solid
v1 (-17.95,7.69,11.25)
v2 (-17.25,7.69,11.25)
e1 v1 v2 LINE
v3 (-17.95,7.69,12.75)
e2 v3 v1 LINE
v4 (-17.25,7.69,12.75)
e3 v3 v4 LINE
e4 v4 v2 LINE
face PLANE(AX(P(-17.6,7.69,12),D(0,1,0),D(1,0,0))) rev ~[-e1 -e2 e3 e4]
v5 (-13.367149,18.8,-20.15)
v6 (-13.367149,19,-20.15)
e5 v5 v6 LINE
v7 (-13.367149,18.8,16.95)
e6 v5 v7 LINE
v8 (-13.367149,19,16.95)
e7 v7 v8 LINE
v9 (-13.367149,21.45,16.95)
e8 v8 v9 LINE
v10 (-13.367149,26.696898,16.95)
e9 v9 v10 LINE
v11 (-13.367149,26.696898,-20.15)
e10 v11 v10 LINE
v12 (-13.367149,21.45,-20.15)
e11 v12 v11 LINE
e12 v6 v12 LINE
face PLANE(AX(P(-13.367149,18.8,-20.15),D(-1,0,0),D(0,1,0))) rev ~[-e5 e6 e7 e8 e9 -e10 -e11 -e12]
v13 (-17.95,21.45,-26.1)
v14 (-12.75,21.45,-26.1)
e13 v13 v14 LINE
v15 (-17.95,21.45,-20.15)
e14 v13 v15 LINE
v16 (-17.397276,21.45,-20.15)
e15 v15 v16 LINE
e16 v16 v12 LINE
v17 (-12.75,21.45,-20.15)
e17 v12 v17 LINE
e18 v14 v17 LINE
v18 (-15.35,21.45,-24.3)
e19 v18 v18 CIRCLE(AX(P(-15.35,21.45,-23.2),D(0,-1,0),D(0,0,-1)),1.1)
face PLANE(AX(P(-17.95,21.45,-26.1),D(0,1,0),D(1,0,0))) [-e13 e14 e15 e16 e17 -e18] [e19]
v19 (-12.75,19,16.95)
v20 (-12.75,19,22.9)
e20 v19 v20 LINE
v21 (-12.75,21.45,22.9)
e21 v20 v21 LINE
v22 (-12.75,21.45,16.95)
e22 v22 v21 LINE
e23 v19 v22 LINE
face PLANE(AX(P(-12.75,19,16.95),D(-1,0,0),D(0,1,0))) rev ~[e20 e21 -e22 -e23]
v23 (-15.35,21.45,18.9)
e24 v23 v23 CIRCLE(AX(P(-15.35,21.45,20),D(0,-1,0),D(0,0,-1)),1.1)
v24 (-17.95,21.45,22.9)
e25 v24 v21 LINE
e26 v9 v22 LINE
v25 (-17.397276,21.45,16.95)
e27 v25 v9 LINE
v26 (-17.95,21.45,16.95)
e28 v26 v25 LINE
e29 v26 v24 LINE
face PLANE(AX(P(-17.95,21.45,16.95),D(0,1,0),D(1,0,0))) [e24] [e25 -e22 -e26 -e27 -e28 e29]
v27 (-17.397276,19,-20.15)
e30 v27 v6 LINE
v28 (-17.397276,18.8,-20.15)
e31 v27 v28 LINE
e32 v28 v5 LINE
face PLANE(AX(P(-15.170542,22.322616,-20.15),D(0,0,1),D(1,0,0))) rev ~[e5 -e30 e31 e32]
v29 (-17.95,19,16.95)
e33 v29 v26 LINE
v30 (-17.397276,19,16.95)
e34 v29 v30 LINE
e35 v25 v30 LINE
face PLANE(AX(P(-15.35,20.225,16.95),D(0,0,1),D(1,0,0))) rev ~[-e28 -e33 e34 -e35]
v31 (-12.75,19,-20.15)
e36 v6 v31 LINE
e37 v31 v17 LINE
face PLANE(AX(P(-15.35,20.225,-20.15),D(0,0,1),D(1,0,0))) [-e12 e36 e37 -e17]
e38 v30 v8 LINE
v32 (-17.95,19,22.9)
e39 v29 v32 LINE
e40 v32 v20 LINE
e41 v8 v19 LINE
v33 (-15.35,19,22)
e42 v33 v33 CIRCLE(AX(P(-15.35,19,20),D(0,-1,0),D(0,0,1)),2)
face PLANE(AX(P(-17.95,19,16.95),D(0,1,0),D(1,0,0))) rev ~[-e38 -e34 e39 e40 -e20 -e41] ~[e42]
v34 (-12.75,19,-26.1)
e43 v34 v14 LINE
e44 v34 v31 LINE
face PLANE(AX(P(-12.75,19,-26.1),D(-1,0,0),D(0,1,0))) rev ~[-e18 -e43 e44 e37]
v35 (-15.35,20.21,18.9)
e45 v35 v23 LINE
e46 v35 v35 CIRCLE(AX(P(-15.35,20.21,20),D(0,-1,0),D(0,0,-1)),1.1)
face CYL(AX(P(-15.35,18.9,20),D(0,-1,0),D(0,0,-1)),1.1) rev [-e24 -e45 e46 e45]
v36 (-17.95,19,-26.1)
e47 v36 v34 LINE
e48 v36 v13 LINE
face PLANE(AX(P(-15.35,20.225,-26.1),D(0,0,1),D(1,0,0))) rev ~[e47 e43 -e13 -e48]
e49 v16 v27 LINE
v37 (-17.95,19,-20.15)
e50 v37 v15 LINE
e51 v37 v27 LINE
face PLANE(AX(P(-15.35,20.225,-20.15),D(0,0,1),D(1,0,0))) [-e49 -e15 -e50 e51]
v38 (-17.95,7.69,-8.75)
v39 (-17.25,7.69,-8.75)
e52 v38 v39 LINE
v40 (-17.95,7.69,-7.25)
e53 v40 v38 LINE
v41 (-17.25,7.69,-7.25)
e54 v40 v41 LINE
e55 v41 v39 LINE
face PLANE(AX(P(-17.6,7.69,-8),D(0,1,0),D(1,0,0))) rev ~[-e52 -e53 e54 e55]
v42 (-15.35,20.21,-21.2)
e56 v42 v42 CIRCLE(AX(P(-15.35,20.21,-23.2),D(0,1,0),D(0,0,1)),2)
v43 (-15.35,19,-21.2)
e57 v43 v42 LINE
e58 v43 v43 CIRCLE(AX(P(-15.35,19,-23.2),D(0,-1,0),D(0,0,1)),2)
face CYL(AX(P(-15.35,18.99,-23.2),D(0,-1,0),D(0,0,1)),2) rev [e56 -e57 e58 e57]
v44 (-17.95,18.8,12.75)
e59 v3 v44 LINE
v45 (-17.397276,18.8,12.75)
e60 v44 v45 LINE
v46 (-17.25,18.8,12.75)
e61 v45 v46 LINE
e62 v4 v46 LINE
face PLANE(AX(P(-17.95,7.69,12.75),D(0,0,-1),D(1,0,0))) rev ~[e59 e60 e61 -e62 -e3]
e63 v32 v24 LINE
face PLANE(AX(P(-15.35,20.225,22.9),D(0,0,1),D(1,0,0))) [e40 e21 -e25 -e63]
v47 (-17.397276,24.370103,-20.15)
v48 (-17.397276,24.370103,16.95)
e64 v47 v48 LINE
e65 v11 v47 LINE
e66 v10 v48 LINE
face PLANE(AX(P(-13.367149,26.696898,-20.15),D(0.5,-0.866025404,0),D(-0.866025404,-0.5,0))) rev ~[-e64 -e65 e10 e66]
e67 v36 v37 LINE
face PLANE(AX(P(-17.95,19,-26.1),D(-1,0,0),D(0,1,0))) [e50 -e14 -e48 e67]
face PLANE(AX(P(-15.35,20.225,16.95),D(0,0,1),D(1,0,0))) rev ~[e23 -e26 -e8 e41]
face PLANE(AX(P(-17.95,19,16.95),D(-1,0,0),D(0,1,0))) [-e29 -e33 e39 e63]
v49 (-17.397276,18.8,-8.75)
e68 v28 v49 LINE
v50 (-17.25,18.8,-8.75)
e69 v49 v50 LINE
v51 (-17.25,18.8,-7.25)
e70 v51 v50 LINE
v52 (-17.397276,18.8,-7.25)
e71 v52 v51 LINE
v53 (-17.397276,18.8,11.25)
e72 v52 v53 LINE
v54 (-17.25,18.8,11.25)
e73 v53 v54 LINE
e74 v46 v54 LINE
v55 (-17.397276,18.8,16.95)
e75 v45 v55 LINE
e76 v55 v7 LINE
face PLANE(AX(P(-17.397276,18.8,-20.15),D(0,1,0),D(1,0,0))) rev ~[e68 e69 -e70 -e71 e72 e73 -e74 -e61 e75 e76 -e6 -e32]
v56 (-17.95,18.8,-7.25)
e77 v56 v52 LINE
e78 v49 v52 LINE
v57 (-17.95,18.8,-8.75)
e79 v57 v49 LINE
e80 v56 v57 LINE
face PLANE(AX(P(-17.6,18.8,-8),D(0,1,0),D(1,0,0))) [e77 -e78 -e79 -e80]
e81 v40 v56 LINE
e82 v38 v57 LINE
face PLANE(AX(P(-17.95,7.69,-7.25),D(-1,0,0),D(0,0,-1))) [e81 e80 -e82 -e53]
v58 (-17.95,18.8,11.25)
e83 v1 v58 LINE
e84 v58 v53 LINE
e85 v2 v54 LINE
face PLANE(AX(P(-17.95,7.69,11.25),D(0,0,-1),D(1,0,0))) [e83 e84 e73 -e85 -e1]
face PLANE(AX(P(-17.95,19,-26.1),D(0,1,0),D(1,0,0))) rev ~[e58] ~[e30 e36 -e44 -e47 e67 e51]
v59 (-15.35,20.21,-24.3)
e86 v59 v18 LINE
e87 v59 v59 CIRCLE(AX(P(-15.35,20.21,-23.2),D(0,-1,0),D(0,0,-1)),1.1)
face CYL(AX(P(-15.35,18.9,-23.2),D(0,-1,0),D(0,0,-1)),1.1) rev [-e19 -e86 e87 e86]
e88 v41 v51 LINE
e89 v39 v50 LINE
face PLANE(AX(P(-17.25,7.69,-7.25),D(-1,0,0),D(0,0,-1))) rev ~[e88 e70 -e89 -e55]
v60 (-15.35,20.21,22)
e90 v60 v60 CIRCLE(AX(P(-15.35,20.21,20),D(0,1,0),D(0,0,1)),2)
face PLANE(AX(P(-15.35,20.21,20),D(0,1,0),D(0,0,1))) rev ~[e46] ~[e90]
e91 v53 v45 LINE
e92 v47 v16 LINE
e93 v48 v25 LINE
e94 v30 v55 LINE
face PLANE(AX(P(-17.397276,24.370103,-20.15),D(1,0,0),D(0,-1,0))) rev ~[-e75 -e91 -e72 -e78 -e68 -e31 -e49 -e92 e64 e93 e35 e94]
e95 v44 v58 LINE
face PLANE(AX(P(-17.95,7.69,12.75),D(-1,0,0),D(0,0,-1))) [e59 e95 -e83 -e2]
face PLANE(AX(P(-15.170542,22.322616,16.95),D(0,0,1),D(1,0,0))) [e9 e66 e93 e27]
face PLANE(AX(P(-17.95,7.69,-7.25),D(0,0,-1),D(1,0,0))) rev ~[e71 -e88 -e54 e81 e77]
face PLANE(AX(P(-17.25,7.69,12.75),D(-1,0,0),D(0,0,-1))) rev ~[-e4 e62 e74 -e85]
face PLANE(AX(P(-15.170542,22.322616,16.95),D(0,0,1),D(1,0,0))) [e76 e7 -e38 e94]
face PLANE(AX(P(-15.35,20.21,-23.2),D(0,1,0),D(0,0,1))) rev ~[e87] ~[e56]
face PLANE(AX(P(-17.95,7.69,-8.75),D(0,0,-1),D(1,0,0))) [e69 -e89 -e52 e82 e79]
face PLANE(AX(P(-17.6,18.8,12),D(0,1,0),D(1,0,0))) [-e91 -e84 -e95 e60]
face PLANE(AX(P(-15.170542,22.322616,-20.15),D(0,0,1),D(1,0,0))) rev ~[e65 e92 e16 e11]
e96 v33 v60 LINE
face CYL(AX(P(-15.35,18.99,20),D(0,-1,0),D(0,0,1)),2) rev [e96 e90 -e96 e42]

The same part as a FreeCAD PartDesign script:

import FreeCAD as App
import Part
import Sketcher

V = App.Vector
Q = App.Units.Quantity

doc = App.newDocument("Part")
body = doc.addObject("PartDesign::Body", "Body")

sketch1 = body.newObject("Sketcher::SketchObject", "Sketch")
sketch1.AttachmentSupport = (doc.getObject("XY_Plane"), [""])
sketch1.MapMode = "FlatFace"
sketch1.AttachmentOffset = App.Placement(V(0, 0, -20.15), App.Rotation())
sketch1.addGeometry(Part.LineSegment(V(-17.4, 18.8, 0), V(-13.4, 18.8, 0)), False)
sketch1.addGeometry(Part.LineSegment(V(-13.4, 18.8, 0), V(-13.4, 26.7, 0)), False)
sketch1.addGeometry(Part.LineSegment(V(-13.4, 26.7, 0), V(-17.4, 24.4, 0)), False)
sketch1.addGeometry(Part.LineSegment(V(-17.4, 24.4, 0), V(-17.4, 18.8, 0)), False)
sketch1.addConstraint(Sketcher.Constraint("Coincident", 0, 2, 1, 1))
sketch1.addConstraint(Sketcher.Constraint("Coincident", 1, 2, 2, 1))
sketch1.addConstraint(Sketcher.Constraint("Coincident", 2, 2, 3, 1))
sketch1.addConstraint(Sketcher.Constraint("Coincident", 3, 2, 0, 1))
sketch1.addConstraint(Sketcher.Constraint("Horizontal", 0))
sketch1.addConstraint(Sketcher.Constraint("Vertical", 1))
sketch1.addConstraint(Sketcher.Constraint("Vertical", 3))
sketch1.addConstraint(Sketcher.Constraint("Angle", 2, Q("-150 deg")))
sketch1.addConstraint(Sketcher.Constraint("DistanceY", -1, 1, 0, 2, Q("18.8 mm")))
sketch1.addConstraint(Sketcher.Constraint("Distance", 2, Q("4.65359 mm")))
sketch1.addConstraint(Sketcher.Constraint("DistanceY", 1, 1, 1, 2, Q("7.896898 mm")))
sketch1.addConstraint(Sketcher.Constraint("DistanceX", 0, 2, -1, 1, Q("13.367149 mm")))
pad1 = body.newObject("PartDesign::Pad", "Pad")
pad1.Profile = sketch1
pad1.Length = 37.1

sketch2 = body.newObject("Sketcher::SketchObject", "Sketch001")
sketch2.AttachmentSupport = (doc.getObject("XY_Plane"), [""])
sketch2.MapMode = "FlatFace"
sketch2.AttachmentOffset = App.Placement(V(0, 0, -26.1), App.Rotation())
sketch2.addGeometry(Part.LineSegment(V(-17.9, 21.4, 0), V(-17.9, 19, 0)), False)
sketch2.addGeometry(Part.LineSegment(V(-17.9, 19, 0), V(-12.8, 19, 0)), False)
sketch2.addGeometry(Part.LineSegment(V(-12.8, 19, 0), V(-12.8, 21.4, 0)), False)
sketch2.addGeometry(Part.LineSegment(V(-12.8, 21.4, 0), V(-17.9, 21.4, 0)), False)
sketch2.addConstraint(Sketcher.Constraint("Coincident", 0, 2, 1, 1))
sketch2.addConstraint(Sketcher.Constraint("Coincident", 1, 2, 2, 1))
sketch2.addConstraint(Sketcher.Constraint("Coincident", 2, 2, 3, 1))
sketch2.addConstraint(Sketcher.Constraint("Coincident", 3, 2, 0, 1))
sketch2.addConstraint(Sketcher.Constraint("Vertical", 0))
sketch2.addConstraint(Sketcher.Constraint("Horizontal", 1))
sketch2.addConstraint(Sketcher.Constraint("Vertical", 2))
sketch2.addConstraint(Sketcher.Constraint("Horizontal", 3))
sketch2.addConstraint(Sketcher.Constraint("DistanceX", 1, 1, 1, 2, Q("5.2 mm")))
sketch2.addConstraint(Sketcher.Constraint("DistanceY", -1, 1, 0, 2, Q("19 mm")))
sketch2.addConstraint(Sketcher.Constraint("DistanceY", 0, 2, 0, 1, Q("2.45 mm")))
sketch2.addConstraint(Sketcher.Constraint("DistanceX", 0, 2, -1, 1, Q("17.95 mm")))
pad2 = body.newObject("PartDesign::Pad", "Pad001")
pad2.Profile = sketch2
pad2.Length = 5.95

sketch3 = body.newObject("Sketcher::SketchObject", "Sketch002")
sketch3.AttachmentSupport = (doc.getObject("XY_Plane"), [""])
sketch3.MapMode = "FlatFace"
sketch3.AttachmentOffset = App.Placement(V(0, 0, 16.95), App.Rotation())
sketch3.addGeometry(Part.LineSegment(V(-17.9, 21.4, 0), V(-17.9, 19, 0)), False)
sketch3.addGeometry(Part.LineSegment(V(-17.9, 19, 0), V(-12.8, 19, 0)), False)
sketch3.addGeometry(Part.LineSegment(V(-12.8, 19, 0), V(-12.8, 21.4, 0)), False)
sketch3.addGeometry(Part.LineSegment(V(-12.8, 21.4, 0), V(-17.9, 21.4, 0)), False)
sketch3.addConstraint(Sketcher.Constraint("Coincident", 0, 2, 1, 1))
sketch3.addConstraint(Sketcher.Constraint("Coincident", 1, 2, 2, 1))
sketch3.addConstraint(Sketcher.Constraint("Coincident", 2, 2, 3, 1))
sketch3.addConstraint(Sketcher.Constraint("Coincident", 3, 2, 0, 1))
sketch3.addConstraint(Sketcher.Constraint("Vertical", 0))
sketch3.addConstraint(Sketcher.Constraint("Horizontal", 1))
sketch3.addConstraint(Sketcher.Constraint("Vertical", 2))
sketch3.addConstraint(Sketcher.Constraint("Horizontal", 3))
sketch3.addConstraint(Sketcher.Constraint("DistanceX", 1, 1, 1, 2, Q("5.2 mm")))
sketch3.addConstraint(Sketcher.Constraint("DistanceY", -1, 1, 0, 2, Q("19 mm")))
sketch3.addConstraint(Sketcher.Constraint("DistanceY", 0, 2, 0, 1, Q("2.45 mm")))
sketch3.addConstraint(Sketcher.Constraint("DistanceX", 0, 2, -1, 1, Q("17.95 mm")))
pad3 = body.newObject("PartDesign::Pad", "Pad002")
pad3.Profile = sketch3
pad3.Length = 5.95

sketch4 = body.newObject("Sketcher::SketchObject", "Sketch003")
sketch4.AttachmentSupport = (doc.getObject("XZ_Plane"), [""])
sketch4.MapMode = "FlatFace"
sketch4.AttachmentOffset = App.Placement(V(0, 0, -18.9), App.Rotation())
sketch4.addGeometry(Part.Circle(V(-15.3, -23.2, 0), V(0, 0, 1), 1.1), False)
sketch4.addGeometry(Part.Circle(V(-15.3, 20, 0), V(0, 0, 1), 1.1), False)
sketch4.addConstraint(Sketcher.Constraint("Equal", 0, 1))
sketch4.addConstraint(Sketcher.Constraint("Vertical", 0, 3, 1, 3))
sketch4.addConstraint(Sketcher.Constraint("Diameter", 0, Q("2.2 mm")))
sketch4.addConstraint(Sketcher.Constraint("DistanceY", -1, 1, 1, 3, Q("20 mm")))
sketch4.addConstraint(Sketcher.Constraint("DistanceY", 0, 3, -1, 1, Q("23.2 mm")))
sketch4.addConstraint(Sketcher.Constraint("DistanceX", 0, 3, -1, 1, Q("15.35 mm")))
pocket1 = body.newObject("PartDesign::Pocket", "Pocket")
pocket1.Profile = sketch4
pocket1.Length = 2.65

sketch5 = body.newObject("Sketcher::SketchObject", "Sketch004")
sketch5.AttachmentSupport = (doc.getObject("XZ_Plane"), [""])
sketch5.MapMode = "FlatFace"
sketch5.AttachmentOffset = App.Placement(V(0, 0, -18.99), App.Rotation())
sketch5.addGeometry(Part.Circle(V(-15.3, -23.2, 0), V(0, 0, 1), 2), False)
sketch5.addGeometry(Part.Circle(V(-15.3, 20, 0), V(0, 0, 1), 2), False)
sketch5.addConstraint(Sketcher.Constraint("Equal", 0, 1))
sketch5.addConstraint(Sketcher.Constraint("Vertical", 0, 3, 1, 3))
sketch5.addConstraint(Sketcher.Constraint("Diameter", 0, Q("4 mm")))
sketch5.addConstraint(Sketcher.Constraint("DistanceY", -1, 1, 1, 3, Q("20 mm")))
sketch5.addConstraint(Sketcher.Constraint("DistanceY", 0, 3, -1, 1, Q("23.2 mm")))
sketch5.addConstraint(Sketcher.Constraint("DistanceX", 0, 3, -1, 1, Q("15.35 mm")))
pocket2 = body.newObject("PartDesign::Pocket", "Pocket001")
pocket2.Profile = sketch5
pocket2.Length = 1.22

sketch6 = body.newObject("Sketcher::SketchObject", "Sketch005")
sketch6.AttachmentSupport = (doc.getObject("XZ_Plane"), [""])
sketch6.MapMode = "FlatFace"
sketch6.AttachmentOffset = App.Placement(V(0, 0, -7.69), App.Rotation())
sketch6.addGeometry(Part.LineSegment(V(-17.9, -8.8, 0), V(-17.9, -7.2, 0)), False)
sketch6.addGeometry(Part.LineSegment(V(-17.9, -7.2, 0), V(-17.2, -7.2, 0)), False)
sketch6.addGeometry(Part.LineSegment(V(-17.2, -7.2, 0), V(-17.2, -8.8, 0)), False)
sketch6.addGeometry(Part.LineSegment(V(-17.2, -8.8, 0), V(-17.9, -8.8, 0)), False)
sketch6.addConstraint(Sketcher.Constraint("Coincident", 0, 2, 1, 1))
sketch6.addConstraint(Sketcher.Constraint("Coincident", 1, 2, 2, 1))
sketch6.addConstraint(Sketcher.Constraint("Coincident", 2, 2, 3, 1))
sketch6.addConstraint(Sketcher.Constraint("Coincident", 3, 2, 0, 1))
sketch6.addConstraint(Sketcher.Constraint("Vertical", 0))
sketch6.addConstraint(Sketcher.Constraint("Horizontal", 1))
sketch6.addConstraint(Sketcher.Constraint("Vertical", 2))
sketch6.addConstraint(Sketcher.Constraint("Horizontal", 3))
sketch6.addConstraint(Sketcher.Constraint("DistanceX", 1, 1, 1, 2, Q("0.7 mm")))
sketch6.addConstraint(Sketcher.Constraint("DistanceY", 0, 1, 0, 2, Q("1.5 mm")))
sketch6.addConstraint(Sketcher.Constraint("DistanceX", 0, 2, -1, 1, Q("17.95 mm")))
sketch6.addConstraint(Sketcher.Constraint("DistanceY", 0, 2, -1, 1, Q("7.25 mm")))
pad4 = body.newObject("PartDesign::Pad", "Pad003")
pad4.Profile = sketch6
pad4.Length = 11.11
pad4.Reversed = True

sketch7 = body.newObject("Sketcher::SketchObject", "Sketch006")
sketch7.AttachmentSupport = (doc.getObject("XZ_Plane"), [""])
sketch7.MapMode = "FlatFace"
sketch7.AttachmentOffset = App.Placement(V(0, 0, -7.69), App.Rotation())
sketch7.addGeometry(Part.LineSegment(V(-17.9, 11.2, 0), V(-17.9, 12.8, 0)), False)
sketch7.addGeometry(Part.LineSegment(V(-17.9, 12.8, 0), V(-17.2, 12.8, 0)), False)
sketch7.addGeometry(Part.LineSegment(V(-17.2, 12.8, 0), V(-17.2, 11.2, 0)), False)
sketch7.addGeometry(Part.LineSegment(V(-17.2, 11.2, 0), V(-17.9, 11.2, 0)), False)
sketch7.addConstraint(Sketcher.Constraint("Coincident", 0, 2, 1, 1))
sketch7.addConstraint(Sketcher.Constraint("Coincident", 1, 2, 2, 1))
sketch7.addConstraint(Sketcher.Constraint("Coincident", 2, 2, 3, 1))
sketch7.addConstraint(Sketcher.Constraint("Coincident", 3, 2, 0, 1))
sketch7.addConstraint(Sketcher.Constraint("Vertical", 0))
sketch7.addConstraint(Sketcher.Constraint("Horizontal", 1))
sketch7.addConstraint(Sketcher.Constraint("Vertical", 2))
sketch7.addConstraint(Sketcher.Constraint("Horizontal", 3))
sketch7.addConstraint(Sketcher.Constraint("DistanceX", 1, 1, 1, 2, Q("0.7 mm")))
sketch7.addConstraint(Sketcher.Constraint("DistanceY", 0, 1, 0, 2, Q("1.5 mm")))
sketch7.addConstraint(Sketcher.Constraint("DistanceX", 0, 2, -1, 1, Q("17.95 mm")))
sketch7.addConstraint(Sketcher.Constraint("DistanceY", -1, 1, 0, 2, Q("12.75 mm")))
pad5 = body.newObject("PartDesign::Pad", "Pad004")
pad5.Profile = sketch7
pad5.Length = 11.11
pad5.Reversed = True

doc.recompute()
